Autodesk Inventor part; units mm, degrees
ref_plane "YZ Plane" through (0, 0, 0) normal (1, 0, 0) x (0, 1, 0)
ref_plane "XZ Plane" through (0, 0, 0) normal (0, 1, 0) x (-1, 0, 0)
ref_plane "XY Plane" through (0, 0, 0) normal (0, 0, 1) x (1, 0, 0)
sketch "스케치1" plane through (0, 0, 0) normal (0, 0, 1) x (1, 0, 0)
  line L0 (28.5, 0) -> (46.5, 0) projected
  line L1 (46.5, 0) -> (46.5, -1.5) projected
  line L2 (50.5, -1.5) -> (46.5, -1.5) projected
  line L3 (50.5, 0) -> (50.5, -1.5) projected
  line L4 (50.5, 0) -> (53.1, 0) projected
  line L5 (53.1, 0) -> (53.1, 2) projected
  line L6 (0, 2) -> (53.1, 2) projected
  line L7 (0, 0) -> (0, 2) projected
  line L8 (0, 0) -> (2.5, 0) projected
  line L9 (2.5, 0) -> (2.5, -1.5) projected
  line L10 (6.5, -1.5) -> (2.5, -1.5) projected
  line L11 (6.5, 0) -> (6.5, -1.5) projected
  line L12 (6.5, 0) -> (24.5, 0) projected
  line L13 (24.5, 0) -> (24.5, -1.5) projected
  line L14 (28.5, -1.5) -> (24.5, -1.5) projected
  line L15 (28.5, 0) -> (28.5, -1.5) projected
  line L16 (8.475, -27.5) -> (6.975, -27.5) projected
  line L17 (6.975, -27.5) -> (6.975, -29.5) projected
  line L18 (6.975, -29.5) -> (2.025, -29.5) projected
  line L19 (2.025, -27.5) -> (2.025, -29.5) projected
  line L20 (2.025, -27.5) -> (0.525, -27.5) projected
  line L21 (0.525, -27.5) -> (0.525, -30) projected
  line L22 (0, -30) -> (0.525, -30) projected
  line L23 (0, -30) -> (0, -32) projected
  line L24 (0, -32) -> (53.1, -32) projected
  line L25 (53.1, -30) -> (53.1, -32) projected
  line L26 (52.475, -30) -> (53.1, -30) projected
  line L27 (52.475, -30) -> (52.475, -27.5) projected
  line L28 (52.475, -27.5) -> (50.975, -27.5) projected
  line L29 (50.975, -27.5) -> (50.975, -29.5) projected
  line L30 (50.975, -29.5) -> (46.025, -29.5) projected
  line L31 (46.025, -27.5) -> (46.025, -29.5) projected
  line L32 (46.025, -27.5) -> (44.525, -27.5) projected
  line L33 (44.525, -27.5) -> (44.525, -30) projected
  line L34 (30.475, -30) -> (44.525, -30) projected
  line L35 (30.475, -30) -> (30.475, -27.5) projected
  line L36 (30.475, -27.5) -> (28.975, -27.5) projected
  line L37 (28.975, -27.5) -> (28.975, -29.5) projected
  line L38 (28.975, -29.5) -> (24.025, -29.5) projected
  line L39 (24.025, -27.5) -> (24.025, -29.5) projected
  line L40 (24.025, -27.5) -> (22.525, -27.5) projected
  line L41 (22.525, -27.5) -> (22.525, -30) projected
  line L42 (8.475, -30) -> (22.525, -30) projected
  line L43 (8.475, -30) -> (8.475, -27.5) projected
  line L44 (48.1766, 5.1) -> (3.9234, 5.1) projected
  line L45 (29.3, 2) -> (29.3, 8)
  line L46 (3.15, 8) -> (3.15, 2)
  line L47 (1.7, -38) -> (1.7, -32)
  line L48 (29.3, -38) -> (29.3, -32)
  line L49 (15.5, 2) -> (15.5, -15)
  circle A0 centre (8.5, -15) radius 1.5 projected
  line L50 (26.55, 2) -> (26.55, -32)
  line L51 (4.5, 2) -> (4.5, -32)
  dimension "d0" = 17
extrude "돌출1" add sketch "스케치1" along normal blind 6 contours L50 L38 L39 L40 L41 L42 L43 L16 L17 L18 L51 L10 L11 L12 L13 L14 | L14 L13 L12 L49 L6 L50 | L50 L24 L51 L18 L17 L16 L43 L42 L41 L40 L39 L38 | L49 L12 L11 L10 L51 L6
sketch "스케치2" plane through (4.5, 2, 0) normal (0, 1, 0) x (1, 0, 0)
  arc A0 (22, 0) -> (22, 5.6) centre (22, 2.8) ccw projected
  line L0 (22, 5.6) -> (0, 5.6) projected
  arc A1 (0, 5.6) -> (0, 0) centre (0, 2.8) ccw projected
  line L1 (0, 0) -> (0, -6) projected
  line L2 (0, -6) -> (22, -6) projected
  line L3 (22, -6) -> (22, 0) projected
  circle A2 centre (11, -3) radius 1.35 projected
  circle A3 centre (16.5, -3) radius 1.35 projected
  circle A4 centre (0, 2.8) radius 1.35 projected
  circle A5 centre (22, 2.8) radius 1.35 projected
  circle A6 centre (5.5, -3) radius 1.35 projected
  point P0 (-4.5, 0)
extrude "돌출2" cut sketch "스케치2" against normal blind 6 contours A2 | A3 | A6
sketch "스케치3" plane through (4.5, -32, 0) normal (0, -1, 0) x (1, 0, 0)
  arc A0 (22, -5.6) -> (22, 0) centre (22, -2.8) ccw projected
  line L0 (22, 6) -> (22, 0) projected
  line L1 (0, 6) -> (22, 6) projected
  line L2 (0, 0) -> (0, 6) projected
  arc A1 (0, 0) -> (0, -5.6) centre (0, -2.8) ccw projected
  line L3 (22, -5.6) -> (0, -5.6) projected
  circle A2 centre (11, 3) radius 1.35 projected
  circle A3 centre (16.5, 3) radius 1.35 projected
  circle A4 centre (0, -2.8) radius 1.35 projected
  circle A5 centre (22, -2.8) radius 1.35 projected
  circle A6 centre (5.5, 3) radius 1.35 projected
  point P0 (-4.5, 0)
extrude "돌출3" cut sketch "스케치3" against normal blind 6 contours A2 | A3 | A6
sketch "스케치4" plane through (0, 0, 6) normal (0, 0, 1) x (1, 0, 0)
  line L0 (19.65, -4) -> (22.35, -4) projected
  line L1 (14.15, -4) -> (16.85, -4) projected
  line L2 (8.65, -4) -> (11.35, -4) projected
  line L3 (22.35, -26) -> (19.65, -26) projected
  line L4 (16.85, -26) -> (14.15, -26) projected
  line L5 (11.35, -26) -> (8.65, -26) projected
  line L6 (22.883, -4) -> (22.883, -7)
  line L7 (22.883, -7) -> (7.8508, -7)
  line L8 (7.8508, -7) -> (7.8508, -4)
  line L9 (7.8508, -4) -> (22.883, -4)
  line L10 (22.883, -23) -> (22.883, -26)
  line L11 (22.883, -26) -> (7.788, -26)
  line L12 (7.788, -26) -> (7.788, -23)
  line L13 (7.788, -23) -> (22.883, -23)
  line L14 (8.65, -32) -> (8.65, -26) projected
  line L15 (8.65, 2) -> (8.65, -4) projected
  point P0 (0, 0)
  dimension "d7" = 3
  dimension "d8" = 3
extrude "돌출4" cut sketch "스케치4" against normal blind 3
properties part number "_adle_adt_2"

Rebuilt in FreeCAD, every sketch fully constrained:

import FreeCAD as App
import Part
import Sketcher
from FreeCAD import Vector


def add_polygon(sketch, points):
    """Adds a closed chain of lines whose ends are joined by coincident constraints."""
    first, n = sketch.GeometryCount, len(points)
    for a, b in zip(points, points[1:] + points[:1]):
        sketch.addGeometry(Part.LineSegment(App.Vector(*a, 0), App.Vector(*b, 0)), False)
    for i in range(n):
        sketch.addConstraint(Sketcher.Constraint("Coincident", first + i, 2, first + (i + 1) % n, 1))

doc = App.newDocument("Part")
body = doc.addObject("PartDesign::Body", "Body")

# Sketch on XY plane
sketch1 = body.newObject("Sketcher::SketchObject", "Sketch")
sketch1.AttachmentSupport = (doc.getObject("XY_Plane"), [""])
sketch1.MapMode = "FlatFace"
add_polygon(sketch1, [(26.6, 2), (4.5, 2), (4.5, -32), (26.6, -32)])  # lines 0-3
sketch1.addGeometry(Part.Circle(Vector(8.5, -15, 0), Vector(0, 0, 1), 1.5), False)  # 4
sketch1.addConstraint(Sketcher.Constraint("Horizontal", 0))
sketch1.addConstraint(Sketcher.Constraint("Vertical", 1))
sketch1.addConstraint(Sketcher.Constraint("Horizontal", 2))
sketch1.addConstraint(Sketcher.Constraint("Vertical", 3))
sketch1.addConstraint(Sketcher.Constraint("Diameter", 4, 3.0))
sketch1.addConstraint(Sketcher.Constraint("DistanceY", 4, 3, 0, 2, 17.0))
sketch1.addConstraint(Sketcher.Constraint("DistanceY", 1, 2, 4, 3, 17.0))
sketch1.addConstraint(Sketcher.Constraint("DistanceY", 4, 3, -1, 1, 15.0))
sketch1.addConstraint(Sketcher.Constraint("DistanceX", 0, 2, 4, 3, 4.0))
sketch1.addConstraint(Sketcher.Constraint("DistanceX", 0, 2, 0, 1, 22.05))
sketch1.addConstraint(Sketcher.Constraint("DistanceX", -1, 1, 4, 3, 8.5))
pad1 = body.newObject("PartDesign::Pad", "Pad")
pad1.Profile = sketch1
pad1.Length = 6

# Sketch on XZ plane
sketch2 = body.newObject("Sketcher::SketchObject", "Sketch001")
sketch2.AttachmentSupport = (doc.getObject("XZ_Plane"), [""])
sketch2.MapMode = "FlatFace"
sketch2.AttachmentOffset = App.Placement(Vector(0, 0, -2), App.Rotation())
sketch2.addGeometry(Part.Circle(Vector(15.5, 3, 0), Vector(0, 0, 1), 1.4), False)
sketch2.addGeometry(Part.Circle(Vector(21, 3, 0), Vector(0, 0, 1), 1.4), False)
sketch2.addGeometry(Part.Circle(Vector(10, 3, 0), Vector(0, 0, 1), 1.4), False)
sketch2.addConstraint(Sketcher.Constraint("Equal", 0, 1))
sketch2.addConstraint(Sketcher.Constraint("Equal", 1, 2))
sketch2.addConstraint(Sketcher.Constraint("Horizontal", 0, 3, 1, 3))
sketch2.addConstraint(Sketcher.Constraint("Horizontal", 1, 3, 2, 3))
sketch2.addConstraint(Sketcher.Constraint("Diameter", 0, 2.7))
sketch2.addConstraint(Sketcher.Constraint("DistanceY", -1, 1, 0, 3, 3.0))
sketch2.addConstraint(Sketcher.Constraint("DistanceX", -1, 1, 1, 3, 21.0))
sketch2.addConstraint(Sketcher.Constraint("DistanceX", -1, 1, 2, 3, 10.0))
sketch2.addConstraint(Sketcher.Constraint("DistanceX", -1, 1, 0, 3, 15.5))
pocket1 = body.newObject("PartDesign::Pocket", "Pocket")
pocket1.Profile = sketch2
pocket1.Length = 6
pocket1.Reversed = True

# Sketch on XZ plane
sketch3 = body.newObject("Sketcher::SketchObject", "Sketch002")
sketch3.AttachmentSupport = (doc.getObject("XZ_Plane"), [""])
sketch3.MapMode = "FlatFace"
sketch3.AttachmentOffset = App.Placement(Vector(0, 0, 32), App.Rotation())
sketch3.addGeometry(Part.Circle(Vector(15.5, 3, 0), Vector(0, 0, 1), 1.4), False)
sketch3.addGeometry(Part.Circle(Vector(21, 3, 0), Vector(0, 0, 1), 1.4), False)
sketch3.addGeometry(Part.Circle(Vector(10, 3, 0), Vector(0, 0, 1), 1.4), False)
sketch3.addConstraint(Sketcher.Constraint("Equal", 0, 1))
sketch3.addConstraint(Sketcher.Constraint("Equal", 1, 2))
sketch3.addConstraint(Sketcher.Constraint("Horizontal", 0, 3, 1, 3))
sketch3.addConstraint(Sketcher.Constraint("Horizontal", 1, 3, 2, 3))
sketch3.addConstraint(Sketcher.Constraint("Diameter", 0, 2.7))
sketch3.addConstraint(Sketcher.Constraint("DistanceY", -1, 1, 0, 3, 3.0))
sketch3.addConstraint(Sketcher.Constraint("DistanceX", -1, 1, 1, 3, 21.0))
sketch3.addConstraint(Sketcher.Constraint("DistanceX", -1, 1, 2, 3, 10.0))
sketch3.addConstraint(Sketcher.Constraint("DistanceX", -1, 1, 0, 3, 15.5))
pocket2 = body.newObject("PartDesign::Pocket", "Pocket001")
pocket2.Profile = sketch3
pocket2.Length = 6

# Sketch on XY plane
sketch4 = body.newObject("Sketcher::SketchObject", "Sketch003")
sketch4.AttachmentSupport = (doc.getObject("XY_Plane"), [""])
sketch4.MapMode = "FlatFace"
sketch4.AttachmentOffset = App.Placement(Vector(0, 0, 6), App.Rotation())
add_polygon(sketch4, [(22.9, -4), (7.9, -4), (7.9, -7), (22.9, -7)])  # lines 0-3
add_polygon(sketch4, [(7.8, -26), (22.9, -26), (22.9, -23), (7.8, -23)])  # lines 4-7
sketch4.addConstraint(Sketcher.Constraint("Horizontal", 0))
sketch4.addConstraint(Sketcher.Constraint("Vertical", 1))
sketch4.addConstraint(Sketcher.Constraint("Horizontal", 2))
sketch4.addConstraint(Sketcher.Constraint("Vertical", 3))
sketch4.addConstraint(Sketcher.Constraint("Horizontal", 4))
sketch4.addConstraint(Sketcher.Constraint("Vertical", 5))
sketch4.addConstraint(Sketcher.Constraint("Horizontal", 6))
sketch4.addConstraint(Sketcher.Constraint("Vertical", 7))
sketch4.addConstraint(Sketcher.Constraint("Vertical", 3, 2, 4, 2))
sketch4.addConstraint(Sketcher.Constraint("Equal", 3, 5))
sketch4.addConstraint(Sketcher.Constraint("DistanceY", 1, 2, 1, 1, 3.0))
sketch4.addConstraint(Sketcher.Constraint("DistanceY", 0, 2, -1, 1, 4.0))
sketch4.addConstraint(Sketcher.Constraint("DistanceY", 4, 2, -1, 1, 26.0))
sketch4.addConstraint(Sketcher.Constraint("DistanceX", 4, 1, 4, 2, 15.095))
sketch4.addConstraint(Sketcher.Constraint("DistanceX", 0, 2, 0, 1, 15.0322))
sketch4.addConstraint(Sketcher.Constraint("DistanceX", -1, 1, 2, 2, 22.883))
pocket3 = body.newObject("PartDesign::Pocket", "Pocket002")
pocket3.Profile = sketch4
pocket3.Length = 3

doc.recompute()
